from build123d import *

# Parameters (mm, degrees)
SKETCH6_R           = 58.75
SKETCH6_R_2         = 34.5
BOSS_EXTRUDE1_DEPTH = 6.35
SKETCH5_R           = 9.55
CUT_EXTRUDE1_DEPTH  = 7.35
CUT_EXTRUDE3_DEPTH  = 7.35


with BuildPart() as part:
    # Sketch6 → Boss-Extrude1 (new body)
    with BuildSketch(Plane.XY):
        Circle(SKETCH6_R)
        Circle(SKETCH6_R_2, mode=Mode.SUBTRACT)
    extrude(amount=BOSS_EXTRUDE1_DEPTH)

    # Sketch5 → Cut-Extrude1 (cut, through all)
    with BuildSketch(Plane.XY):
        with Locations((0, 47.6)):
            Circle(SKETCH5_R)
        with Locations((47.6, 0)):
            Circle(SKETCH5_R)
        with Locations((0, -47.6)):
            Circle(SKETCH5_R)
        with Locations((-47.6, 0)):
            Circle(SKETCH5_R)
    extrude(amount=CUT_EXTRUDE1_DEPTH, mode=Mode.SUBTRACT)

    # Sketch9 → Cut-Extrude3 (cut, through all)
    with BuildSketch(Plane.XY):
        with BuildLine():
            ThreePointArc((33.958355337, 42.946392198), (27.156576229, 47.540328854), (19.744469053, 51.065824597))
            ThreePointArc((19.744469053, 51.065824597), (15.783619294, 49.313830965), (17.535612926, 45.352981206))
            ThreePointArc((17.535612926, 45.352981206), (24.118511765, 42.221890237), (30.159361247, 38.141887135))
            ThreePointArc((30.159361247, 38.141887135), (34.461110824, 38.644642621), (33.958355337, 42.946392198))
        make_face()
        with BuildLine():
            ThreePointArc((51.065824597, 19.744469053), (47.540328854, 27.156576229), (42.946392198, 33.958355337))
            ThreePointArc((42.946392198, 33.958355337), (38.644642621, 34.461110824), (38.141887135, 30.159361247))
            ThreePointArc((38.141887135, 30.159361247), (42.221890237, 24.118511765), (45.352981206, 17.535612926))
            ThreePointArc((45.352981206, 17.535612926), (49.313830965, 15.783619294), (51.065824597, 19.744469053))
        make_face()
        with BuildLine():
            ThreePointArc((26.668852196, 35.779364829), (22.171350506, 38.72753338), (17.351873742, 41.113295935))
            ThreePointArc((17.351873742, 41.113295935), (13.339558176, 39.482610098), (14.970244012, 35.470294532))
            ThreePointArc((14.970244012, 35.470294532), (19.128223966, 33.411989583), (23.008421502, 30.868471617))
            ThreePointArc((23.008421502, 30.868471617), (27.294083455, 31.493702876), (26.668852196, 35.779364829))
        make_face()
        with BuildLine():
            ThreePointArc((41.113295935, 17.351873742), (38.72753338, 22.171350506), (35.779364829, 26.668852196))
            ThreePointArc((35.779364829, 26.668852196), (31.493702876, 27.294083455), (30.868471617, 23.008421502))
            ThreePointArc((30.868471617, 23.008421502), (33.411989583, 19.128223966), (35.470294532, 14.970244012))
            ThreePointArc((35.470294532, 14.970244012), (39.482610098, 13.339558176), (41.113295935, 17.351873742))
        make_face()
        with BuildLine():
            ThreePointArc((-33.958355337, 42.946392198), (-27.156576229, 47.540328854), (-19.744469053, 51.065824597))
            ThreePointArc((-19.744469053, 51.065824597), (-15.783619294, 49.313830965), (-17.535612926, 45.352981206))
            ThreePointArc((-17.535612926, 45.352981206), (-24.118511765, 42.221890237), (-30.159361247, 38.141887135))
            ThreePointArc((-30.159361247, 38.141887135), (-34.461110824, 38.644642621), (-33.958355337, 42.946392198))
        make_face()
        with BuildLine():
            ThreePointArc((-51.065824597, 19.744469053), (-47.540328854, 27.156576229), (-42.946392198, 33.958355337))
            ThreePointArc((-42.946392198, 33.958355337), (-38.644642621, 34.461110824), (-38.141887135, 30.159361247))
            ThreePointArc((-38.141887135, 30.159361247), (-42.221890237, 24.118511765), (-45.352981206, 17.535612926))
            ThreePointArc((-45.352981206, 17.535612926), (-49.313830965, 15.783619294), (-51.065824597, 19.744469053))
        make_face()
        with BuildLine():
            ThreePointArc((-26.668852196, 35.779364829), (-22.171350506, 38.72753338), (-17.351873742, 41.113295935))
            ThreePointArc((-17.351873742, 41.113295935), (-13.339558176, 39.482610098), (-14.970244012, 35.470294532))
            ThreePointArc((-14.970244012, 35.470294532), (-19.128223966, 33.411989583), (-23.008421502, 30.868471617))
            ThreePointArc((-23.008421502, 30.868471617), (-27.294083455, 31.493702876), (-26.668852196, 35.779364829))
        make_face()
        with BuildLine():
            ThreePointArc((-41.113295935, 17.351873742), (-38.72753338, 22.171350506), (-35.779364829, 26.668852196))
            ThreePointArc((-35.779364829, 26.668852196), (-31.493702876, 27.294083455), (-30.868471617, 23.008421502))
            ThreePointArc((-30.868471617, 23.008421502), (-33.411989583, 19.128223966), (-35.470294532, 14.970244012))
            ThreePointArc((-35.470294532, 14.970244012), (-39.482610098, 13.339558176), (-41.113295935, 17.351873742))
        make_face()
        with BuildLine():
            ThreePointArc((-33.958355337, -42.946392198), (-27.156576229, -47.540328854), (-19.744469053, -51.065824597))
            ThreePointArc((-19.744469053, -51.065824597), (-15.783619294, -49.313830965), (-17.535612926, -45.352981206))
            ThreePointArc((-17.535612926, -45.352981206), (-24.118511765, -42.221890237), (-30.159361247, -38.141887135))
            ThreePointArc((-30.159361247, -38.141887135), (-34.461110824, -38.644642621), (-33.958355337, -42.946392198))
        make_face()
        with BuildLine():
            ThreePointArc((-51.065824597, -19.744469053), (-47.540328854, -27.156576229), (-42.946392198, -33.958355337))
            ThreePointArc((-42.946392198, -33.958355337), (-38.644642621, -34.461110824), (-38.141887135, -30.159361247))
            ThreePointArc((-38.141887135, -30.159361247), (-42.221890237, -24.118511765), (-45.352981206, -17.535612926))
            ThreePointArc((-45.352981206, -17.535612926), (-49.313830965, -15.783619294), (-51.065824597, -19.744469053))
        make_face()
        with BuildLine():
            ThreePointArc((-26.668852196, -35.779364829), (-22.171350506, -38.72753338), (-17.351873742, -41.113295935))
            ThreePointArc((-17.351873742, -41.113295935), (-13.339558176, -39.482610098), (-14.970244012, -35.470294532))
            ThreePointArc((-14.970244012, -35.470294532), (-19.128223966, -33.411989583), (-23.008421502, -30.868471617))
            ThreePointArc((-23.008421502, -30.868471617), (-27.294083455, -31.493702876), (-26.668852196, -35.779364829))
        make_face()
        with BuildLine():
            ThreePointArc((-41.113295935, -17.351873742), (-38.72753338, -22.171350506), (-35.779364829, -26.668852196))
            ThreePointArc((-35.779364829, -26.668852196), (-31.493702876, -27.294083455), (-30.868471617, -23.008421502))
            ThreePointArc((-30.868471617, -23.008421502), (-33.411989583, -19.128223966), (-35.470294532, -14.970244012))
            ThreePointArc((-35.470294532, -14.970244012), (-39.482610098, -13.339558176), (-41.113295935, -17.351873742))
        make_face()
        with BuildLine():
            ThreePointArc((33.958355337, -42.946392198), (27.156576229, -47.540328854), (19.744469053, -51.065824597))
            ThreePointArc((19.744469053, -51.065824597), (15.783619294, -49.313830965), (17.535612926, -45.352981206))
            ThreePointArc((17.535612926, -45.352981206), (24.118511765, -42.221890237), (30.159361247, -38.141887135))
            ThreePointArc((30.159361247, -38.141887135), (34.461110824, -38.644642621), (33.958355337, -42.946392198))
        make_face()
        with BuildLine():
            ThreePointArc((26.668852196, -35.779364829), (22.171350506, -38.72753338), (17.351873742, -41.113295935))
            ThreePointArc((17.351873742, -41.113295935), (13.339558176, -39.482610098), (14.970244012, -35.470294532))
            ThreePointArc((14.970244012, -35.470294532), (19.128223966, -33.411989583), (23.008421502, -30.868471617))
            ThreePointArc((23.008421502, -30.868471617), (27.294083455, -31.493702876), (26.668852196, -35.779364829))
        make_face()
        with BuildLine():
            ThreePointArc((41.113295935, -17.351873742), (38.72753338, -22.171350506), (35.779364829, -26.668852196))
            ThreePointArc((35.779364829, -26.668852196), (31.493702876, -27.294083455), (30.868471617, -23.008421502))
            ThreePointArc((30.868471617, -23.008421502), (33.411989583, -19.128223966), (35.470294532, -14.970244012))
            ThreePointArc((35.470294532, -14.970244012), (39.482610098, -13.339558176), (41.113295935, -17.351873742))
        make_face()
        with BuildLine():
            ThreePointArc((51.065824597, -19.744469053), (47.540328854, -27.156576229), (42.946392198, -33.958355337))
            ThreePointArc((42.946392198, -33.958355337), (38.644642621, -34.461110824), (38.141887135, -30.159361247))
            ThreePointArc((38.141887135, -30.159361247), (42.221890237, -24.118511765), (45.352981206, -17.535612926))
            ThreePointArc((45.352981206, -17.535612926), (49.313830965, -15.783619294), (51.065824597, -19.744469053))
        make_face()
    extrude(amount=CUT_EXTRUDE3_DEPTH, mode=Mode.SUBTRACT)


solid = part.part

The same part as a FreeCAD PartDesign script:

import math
import FreeCAD as App
import Part
import Sketcher
Q = App.Units.Quantity

doc = App.newDocument("Part")
body = doc.addObject("PartDesign::Body", "Body")

sketch1 = body.newObject("Sketcher::SketchObject", "Sketch")
sketch1.AttachmentSupport = (doc.getObject("XY_Plane"), [""])
sketch1.MapMode = "FlatFace"
sketch1.addGeometry([
    Part.Circle(App.Vector(0, 0, 0), App.Vector(0, 0, 1), 59),
    Part.Circle(App.Vector(0, 0, 0), App.Vector(0, 0, 1), 34),
], False)
sketch1.addConstraint([
    Sketcher.Constraint("Coincident", 0, 3, -1, 1),
    Sketcher.Constraint("Coincident", 1, 3, -1, 1),
    Sketcher.Constraint("Diameter", 1, Q("69 mm")),
    Sketcher.Constraint("Diameter", 0, Q("117.5 mm")),
])
pad1 = body.newObject("PartDesign::Pad", "Pad")
pad1.Profile = sketch1
pad1.Length = 6.35

sketch2 = body.newObject("Sketcher::SketchObject", "Sketch001")
sketch2.AttachmentSupport = (doc.getObject("XY_Plane"), [""])
sketch2.MapMode = "FlatFace"
sketch2.addGeometry([
    Part.Circle(App.Vector(0, 48, 0), App.Vector(0, 0, 1), 10),
    Part.Circle(App.Vector(48, 0, 0), App.Vector(0, 0, 1), 10),
    Part.Circle(App.Vector(0, -48, 0), App.Vector(0, 0, 1), 10),
    Part.Circle(App.Vector(-48, 0, 0), App.Vector(0, 0, 1), 10),
], False)
sketch2.addConstraint([
    Sketcher.Constraint("Equal", 0, 1),
    Sketcher.Constraint("Equal", 1, 2),
    Sketcher.Constraint("Equal", 2, 3),
    Sketcher.Constraint("Symmetric", 0, 3, 2, 3, -1, 1),
    Sketcher.Constraint("Symmetric", 1, 3, 3, 3, -1, 1),
    Sketcher.Constraint("PointOnObject", 0, 3, -2),
    Sketcher.Constraint("PointOnObject", 1, 3, -1),
    Sketcher.Constraint("Diameter", 0, Q("19.1 mm")),
    Sketcher.Constraint("DistanceY", -1, 1, 0, 3, Q("47.6 mm")),
    Sketcher.Constraint("DistanceX", -1, 1, 1, 3, Q("47.6 mm")),
])
pocket1 = body.newObject("PartDesign::Pocket", "Pocket")
pocket1.Profile = sketch2
pocket1.Type = "ThroughAll"
pocket1.Reversed = True

sketch3 = body.newObject("Sketcher::SketchObject", "Sketch002")
sketch3.AttachmentSupport = (doc.getObject("XY_Plane"), [""])
sketch3.MapMode = "FlatFace"
sketch3.addGeometry([
    Part.ArcOfCircle(Part.Circle(App.Vector(0, 0, 0), App.Vector(0, 0, 1), 54.7), math.radians(51.67), math.radians(68.86)),
    Part.ArcOfCircle(Part.Circle(App.Vector(18.6, 48.2, 0), App.Vector(0, 0, 1), 3.1), math.radians(69), math.radians(249)),
    Part.ArcOfCircle(Part.Circle(App.Vector(0, 0, 0), App.Vector(0, 0, 1), 48.6), math.radians(51.67), math.radians(68.86)),
    Part.ArcOfCircle(Part.Circle(App.Vector(32.1, 40.5, 0), App.Vector(0, 0, 1), 3.1), math.radians(-128), math.radians(52)),
    Part.ArcOfCircle(Part.Circle(App.Vector(0, 0, 0), App.Vector(0, 0, 1), 54.7), math.radians(21.14), math.radians(38.33)),
    Part.ArcOfCircle(Part.Circle(App.Vector(40.5, 32.1, 0), App.Vector(0, 0, 1), 3.1), math.radians(38), math.radians(218)),
    Part.ArcOfCircle(Part.Circle(App.Vector(0, 0, 0), App.Vector(0, 0, 1), 48.6), math.radians(21.14), math.radians(38.33)),
    Part.ArcOfCircle(Part.Circle(App.Vector(48.2, 18.6, 0), App.Vector(0, 0, 1), 3.1), math.radians(-159), math.radians(21)),
    Part.ArcOfCircle(Part.Circle(App.Vector(0, 0, 0), App.Vector(0, 0, 1), 44.6), math.radians(53.3), math.radians(67.12)),
    Part.ArcOfCircle(Part.Circle(App.Vector(16.2, 38.3, 0), App.Vector(0, 0, 1), 3.1), math.radians(67), math.radians(247)),
    Part.ArcOfCircle(Part.Circle(App.Vector(0, 0, 0), App.Vector(0, 0, 1), 38.5), math.radians(53.3), math.radians(67.12)),
    Part.ArcOfCircle(Part.Circle(App.Vector(24.8, 33.3, 0), App.Vector(0, 0, 1), 3.1), math.radians(-127), math.radians(53)),
    Part.ArcOfCircle(Part.Circle(App.Vector(0, 0, 0), App.Vector(0, 0, 1), 44.6), math.radians(22.88), math.radians(36.7)),
    Part.ArcOfCircle(Part.Circle(App.Vector(33.3, 24.8, 0), App.Vector(0, 0, 1), 3.1), math.radians(37), math.radians(217)),
    Part.ArcOfCircle(Part.Circle(App.Vector(0, 0, 0), App.Vector(0, 0, 1), 38.5), math.radians(22.88), math.radians(36.7)),
    Part.ArcOfCircle(Part.Circle(App.Vector(38.3, 16.2, 0), App.Vector(0, 0, 1), 3.1), math.radians(-157), math.radians(23)),
    Part.ArcOfCircle(Part.Circle(App.Vector(0, 0, 0), App.Vector(0, 0, 1), 54.7), math.radians(111.14), math.radians(128.33)),
    Part.ArcOfCircle(Part.Circle(App.Vector(-32.1, 40.5, 0), App.Vector(0, 0, 1), 3.1), math.radians(128), math.radians(308)),
    Part.ArcOfCircle(Part.Circle(App.Vector(0, 0, 0), App.Vector(0, 0, 1), 48.6), math.radians(111.14), math.radians(128.33)),
    Part.ArcOfCircle(Part.Circle(App.Vector(-18.6, 48.2, 0), App.Vector(0, 0, 1), 3.1), math.radians(-69), math.radians(111)),
    Part.ArcOfCircle(Part.Circle(App.Vector(0, 0, 0), App.Vector(0, 0, 1), 54.7), math.radians(141.67), math.radians(158.86)),
    Part.ArcOfCircle(Part.Circle(App.Vector(-48.2, 18.6, 0), App.Vector(0, 0, 1), 3.1), math.radians(159), math.radians(339)),
    Part.ArcOfCircle(Part.Circle(App.Vector(0, 0, 0), App.Vector(0, 0, 1), 48.6), math.radians(141.67), math.radians(158.86)),
    Part.ArcOfCircle(Part.Circle(App.Vector(-40.5, 32.1, 0), App.Vector(0, 0, 1), 3.1), math.radians(-38), math.radians(142)),
    Part.ArcOfCircle(Part.Circle(App.Vector(0, 0, 0), App.Vector(0, 0, 1), 44.6), math.radians(112.88), math.radians(126.7)),
    Part.ArcOfCircle(Part.Circle(App.Vector(-24.8, 33.3, 0), App.Vector(0, 0, 1), 3.1), math.radians(127), math.radians(307)),
    Part.ArcOfCircle(Part.Circle(App.Vector(0, 0, 0), App.Vector(0, 0, 1), 38.5), math.radians(112.88), math.radians(126.7)),
    Part.ArcOfCircle(Part.Circle(App.Vector(-16.2, 38.3, 0), App.Vector(0, 0, 1), 3.1), math.radians(-67), math.radians(113)),
    Part.ArcOfCircle(Part.Circle(App.Vector(0, 0, 0), App.Vector(0, 0, 1), 44.6), math.radians(143.3), math.radians(157.12)),
    Part.ArcOfCircle(Part.Circle(App.Vector(-38.3, 16.2, 0), App.Vector(0, 0, 1), 3.1), math.radians(157), math.radians(337)),
    Part.ArcOfCircle(Part.Circle(App.Vector(0, 0, 0), App.Vector(0, 0, 1), 38.5), math.radians(143.3), math.radians(157.12)),
    Part.ArcOfCircle(Part.Circle(App.Vector(-33.3, 24.8, 0), App.Vector(0, 0, 1), 3.1), math.radians(-37), math.radians(143)),
    Part.ArcOfCircle(Part.Circle(App.Vector(0, 0, 0), App.Vector(0, 0, 1), 54.7), math.radians(-128.33), math.radians(-111.14)),
    Part.ArcOfCircle(Part.Circle(App.Vector(-18.6, -48.2, 0), App.Vector(0, 0, 1), 3.1), math.radians(-111), math.radians(69)),
    Part.ArcOfCircle(Part.Circle(App.Vector(0, 0, 0), App.Vector(0, 0, 1), 48.6), math.radians(-128.33), math.radians(-111.14)),
    Part.ArcOfCircle(Part.Circle(App.Vector(-32.1, -40.5, 0), App.Vector(0, 0, 1), 3.1), math.radians(52), math.radians(232)),
    Part.ArcOfCircle(Part.Circle(App.Vector(0, 0, 0), App.Vector(0, 0, 1), 54.7), math.radians(-158.86), math.radians(-141.67)),
    Part.ArcOfCircle(Part.Circle(App.Vector(-40.5, -32.1, 0), App.Vector(0, 0, 1), 3.1), math.radians(-142), math.radians(38)),
    Part.ArcOfCircle(Part.Circle(App.Vector(0, 0, 0), App.Vector(0, 0, 1), 48.6), math.radians(-158.86), math.radians(-141.67)),
    Part.ArcOfCircle(Part.Circle(App.Vector(-48.2, -18.6, 0), App.Vector(0, 0, 1), 3.1), math.radians(21), math.radians(201)),
    Part.ArcOfCircle(Part.Circle(App.Vector(0, 0, 0), App.Vector(0, 0, 1), 44.6), math.radians(-126.7), math.radians(-112.88)),
    Part.ArcOfCircle(Part.Circle(App.Vector(-16.2, -38.3, 0), App.Vector(0, 0, 1), 3.1), math.radians(-113), math.radians(67)),
    Part.ArcOfCircle(Part.Circle(App.Vector(0, 0, 0), App.Vector(0, 0, 1), 38.5), math.radians(-126.7), math.radians(-112.88)),
    Part.ArcOfCircle(Part.Circle(App.Vector(-24.8, -33.3, 0), App.Vector(0, 0, 1), 3.1), math.radians(53), math.radians(233)),
    Part.ArcOfCircle(Part.Circle(App.Vector(0, 0, 0), App.Vector(0, 0, 1), 44.6), math.radians(-157.12), math.radians(-143.3)),
    Part.ArcOfCircle(Part.Circle(App.Vector(-33.3, -24.8, 0), App.Vector(0, 0, 1), 3.1), math.radians(-143), math.radians(37)),
    Part.ArcOfCircle(Part.Circle(App.Vector(0, 0, 0), App.Vector(0, 0, 1), 38.5), math.radians(-157.12), math.radians(-143.3)),
    Part.ArcOfCircle(Part.Circle(App.Vector(-38.3, -16.2, 0), App.Vector(0, 0, 1), 3.1), math.radians(23), math.radians(203)),
    Part.ArcOfCircle(Part.Circle(App.Vector(0, 0, 0), App.Vector(0, 0, 1), 54.7), math.radians(-68.86), math.radians(-51.67)),
    Part.ArcOfCircle(Part.Circle(App.Vector(32.1, -40.5, 0), App.Vector(0, 0, 1), 3.1), math.radians(-52), math.radians(128)),
    Part.ArcOfCircle(Part.Circle(App.Vector(0, 0, 0), App.Vector(0, 0, 1), 48.6), math.radians(-68.86), math.radians(-51.67)),
    Part.ArcOfCircle(Part.Circle(App.Vector(18.6, -48.2, 0), App.Vector(0, 0, 1), 3.1), math.radians(111), math.radians(291)),
    Part.ArcOfCircle(Part.Circle(App.Vector(0, 0, 0), App.Vector(0, 0, 1), 44.6), math.radians(-67.12), math.radians(-53.3)),
    Part.ArcOfCircle(Part.Circle(App.Vector(24.8, -33.3, 0), App.Vector(0, 0, 1), 3.1), math.radians(-53), math.radians(127)),
    Part.ArcOfCircle(Part.Circle(App.Vector(0, 0, 0), App.Vector(0, 0, 1), 38.5), math.radians(-67.12), math.radians(-53.3)),
    Part.ArcOfCircle(Part.Circle(App.Vector(16.2, -38.3, 0), App.Vector(0, 0, 1), 3.1), math.radians(113), math.radians(293)),
    Part.ArcOfCircle(Part.Circle(App.Vector(0, 0, 0), App.Vector(0, 0, 1), 44.6), math.radians(-36.7), math.radians(-22.88)),
    Part.ArcOfCircle(Part.Circle(App.Vector(38.3, -16.2, 0), App.Vector(0, 0, 1), 3.1), math.radians(-23), math.radians(157)),
    Part.ArcOfCircle(Part.Circle(App.Vector(0, 0, 0), App.Vector(0, 0, 1), 38.5), math.radians(-36.7), math.radians(-22.88)),
    Part.ArcOfCircle(Part.Circle(App.Vector(33.3, -24.8, 0), App.Vector(0, 0, 1), 3.1), math.radians(143), math.radians(323)),
    Part.ArcOfCircle(Part.Circle(App.Vector(0, 0, 0), App.Vector(0, 0, 1), 54.7), math.radians(-38.33), math.radians(-21.14)),
    Part.ArcOfCircle(Part.Circle(App.Vector(48.2, -18.6, 0), App.Vector(0, 0, 1), 3.1), math.radians(-21), math.radians(159)),
    Part.ArcOfCircle(Part.Circle(App.Vector(0, 0, 0), App.Vector(0, 0, 1), 48.6), math.radians(-38.33), math.radians(-21.14)),
    Part.ArcOfCircle(Part.Circle(App.Vector(40.5, -32.1, 0), App.Vector(0, 0, 1), 3.1), math.radians(142), math.radians(322)),
], False)
sketch3.addConstraint([
    Sketcher.Constraint("Tangent", 0, 2, 1, 1),
    Sketcher.Constraint("Tangent", 1, 2, 2, 2),
    Sketcher.Constraint("Tangent", 2, 1, 3, 1),
    Sketcher.Constraint("Tangent", 3, 2, 0, 1),
    Sketcher.Constraint("Tangent", 4, 2, 5, 1),
    Sketcher.Constraint("Tangent", 5, 2, 6, 2),
    Sketcher.Constraint("Tangent", 6, 1, 7, 1),
    Sketcher.Constraint("Tangent", 7, 2, 4, 1),
    Sketcher.Constraint("Tangent", 8, 2, 9, 1),
    Sketcher.Constraint("Tangent", 9, 2, 10, 2),
    Sketcher.Constraint("Tangent", 10, 1, 11, 1),
    Sketcher.Constraint("Tangent", 11, 2, 8, 1),
    Sketcher.Constraint("Tangent", 12, 2, 13, 1),
    Sketcher.Constraint("Tangent", 13, 2, 14, 2),
    Sketcher.Constraint("Tangent", 14, 1, 15, 1),
    Sketcher.Constraint("Tangent", 15, 2, 12, 1),
    Sketcher.Constraint("Tangent", 16, 2, 17, 1),
    Sketcher.Constraint("Tangent", 17, 2, 18, 2),
    Sketcher.Constraint("Tangent", 18, 1, 19, 1),
    Sketcher.Constraint("Tangent", 19, 2, 16, 1),
    Sketcher.Constraint("Tangent", 20, 2, 21, 1),
    Sketcher.Constraint("Tangent", 21, 2, 22, 2),
    Sketcher.Constraint("Tangent", 22, 1, 23, 1),
    Sketcher.Constraint("Tangent", 23, 2, 20, 1),
    Sketcher.Constraint("Tangent", 24, 2, 25, 1),
    Sketcher.Constraint("Tangent", 25, 2, 26, 2),
    Sketcher.Constraint("Tangent", 26, 1, 27, 1),
    Sketcher.Constraint("Tangent", 27, 2, 24, 1),
    Sketcher.Constraint("Tangent", 28, 2, 29, 1),
    Sketcher.Constraint("Tangent", 29, 2, 30, 2),
    Sketcher.Constraint("Tangent", 30, 1, 31, 1),
    Sketcher.Constraint("Tangent", 31, 2, 28, 1),
    Sketcher.Constraint("Tangent", 32, 2, 33, 1),
    Sketcher.Constraint("Tangent", 33, 2, 34, 2),
    Sketcher.Constraint("Tangent", 34, 1, 35, 1),
    Sketcher.Constraint("Tangent", 35, 2, 32, 1),
    Sketcher.Constraint("Tangent", 36, 2, 37, 1),
    Sketcher.Constraint("Tangent", 37, 2, 38, 2),
    Sketcher.Constraint("Tangent", 38, 1, 39, 1),
    Sketcher.Constraint("Tangent", 39, 2, 36, 1),
    Sketcher.Constraint("Tangent", 40, 2, 41, 1),
    Sketcher.Constraint("Tangent", 41, 2, 42, 2),
    Sketcher.Constraint("Tangent", 42, 1, 43, 1),
    Sketcher.Constraint("Tangent", 43, 2, 40, 1),
    Sketcher.Constraint("Tangent", 44, 2, 45, 1),
    Sketcher.Constraint("Tangent", 45, 2, 46, 2),
    Sketcher.Constraint("Tangent", 46, 1, 47, 1),
    Sketcher.Constraint("Tangent", 47, 2, 44, 1),
    Sketcher.Constraint("Tangent", 48, 2, 49, 1),
    Sketcher.Constraint("Tangent", 49, 2, 50, 2),
    Sketcher.Constraint("Tangent", 50, 1, 51, 1),
    Sketcher.Constraint("Tangent", 51, 2, 48, 1),
    Sketcher.Constraint("Tangent", 52, 2, 53, 1),
    Sketcher.Constraint("Tangent", 53, 2, 54, 2),
    Sketcher.Constraint("Tangent", 54, 1, 55, 1),
    Sketcher.Constraint("Tangent", 55, 2, 52, 1),
    Sketcher.Constraint("Tangent", 56, 2, 57, 1),
    Sketcher.Constraint("Tangent", 57, 2, 58, 2),
    Sketcher.Constraint("Tangent", 58, 1, 59, 1),
    Sketcher.Constraint("Tangent", 59, 2, 56, 1),
    Sketcher.Constraint("Tangent", 60, 2, 61, 1),
    Sketcher.Constraint("Tangent", 61, 2, 62, 2),
    Sketcher.Constraint("Tangent", 62, 1, 63, 1),
    Sketcher.Constraint("Tangent", 63, 2, 60, 1),
    Sketcher.Constraint("Coincident", 0, 3, -1, 1),
    Sketcher.Constraint("Coincident", 2, 3, -1, 1),
    Sketcher.Constraint("Coincident", 4, 3, -1, 1),
    Sketcher.Constraint("Coincident", 6, 3, -1, 1),
    Sketcher.Constraint("Coincident", 8, 3, -1, 1),
    Sketcher.Constraint("Coincident", 10, 3, -1, 1),
    Sketcher.Constraint("Coincident", 12, 3, -1, 1),
    Sketcher.Constraint("Coincident", 14, 3, -1, 1),
    Sketcher.Constraint("Coincident", 16, 3, -1, 1),
    Sketcher.Constraint("Coincident", 18, 3, -1, 1),
    Sketcher.Constraint("Coincident", 20, 3, -1, 1),
    Sketcher.Constraint("Coincident", 22, 3, -1, 1),
    Sketcher.Constraint("Coincident", 24, 3, -1, 1),
    Sketcher.Constraint("Coincident", 26, 3, -1, 1),
    Sketcher.Constraint("Coincident", 28, 3, -1, 1),
    Sketcher.Constraint("Coincident", 30, 3, -1, 1),
    Sketcher.Constraint("Coincident", 32, 3, -1, 1),
    Sketcher.Constraint("Coincident", 34, 3, -1, 1),
    Sketcher.Constraint("Coincident", 36, 3, -1, 1),
    Sketcher.Constraint("Coincident", 38, 3, -1, 1),
    Sketcher.Constraint("Coincident", 40, 3, -1, 1),
    Sketcher.Constraint("Coincident", 42, 3, -1, 1),
    Sketcher.Constraint("Coincident", 44, 3, -1, 1),
    Sketcher.Constraint("Coincident", 46, 3, -1, 1),
    Sketcher.Constraint("Coincident", 48, 3, -1, 1),
    Sketcher.Constraint("Coincident", 50, 3, -1, 1),
    Sketcher.Constraint("Coincident", 52, 3, -1, 1),
    Sketcher.Constraint("Coincident", 54, 3, -1, 1),
    Sketcher.Constraint("Coincident", 56, 3, -1, 1),
    Sketcher.Constraint("Coincident", 58, 3, -1, 1),
    Sketcher.Constraint("Coincident", 60, 3, -1, 1),
    Sketcher.Constraint("Coincident", 62, 3, -1, 1),
    Sketcher.Constraint("Equal", 0, 4),
    Sketcher.Constraint("Equal", 3, 5),
    Sketcher.Constraint("Equal", 7, 9),
    Sketcher.Constraint("Equal", 8, 12),
    Sketcher.Constraint("Equal", 11, 13),
    Sketcher.Constraint("Equal", 4, 16),
    Sketcher.Constraint("Equal", 15, 17),
    Sketcher.Constraint("Equal", 16, 20),
    Sketcher.Constraint("Equal", 19, 21),
    Sketcher.Constraint("Equal", 12, 24),
    Sketcher.Constraint("Equal", 23, 25),
    Sketcher.Constraint("Equal", 24, 28),
    Sketcher.Constraint("Equal", 27, 29),
    Sketcher.Constraint("Equal", 20, 32),
    Sketcher.Constraint("Equal", 31, 33),
    Sketcher.Constraint("Equal", 32, 36),
    Sketcher.Constraint("Equal", 35, 37),
    Sketcher.Constraint("Equal", 28, 40),
    Sketcher.Constraint("Equal", 39, 41),
    Sketcher.Constraint("Equal", 40, 44),
    Sketcher.Constraint("Equal", 43, 45),
    Sketcher.Constraint("Equal", 36, 48),
    Sketcher.Constraint("Equal", 47, 49),
    Sketcher.Constraint("Equal", 44, 52),
    Sketcher.Constraint("Equal", 51, 53),
    Sketcher.Constraint("Equal", 52, 56),
    Sketcher.Constraint("Equal", 55, 57),
    Sketcher.Constraint("Equal", 48, 60),
    Sketcher.Constraint("Equal", 59, 61),
    Sketcher.Constraint("Horizontal", 3, 3, 17, 3),
    Sketcher.Constraint("Horizontal", 1, 3, 19, 3),
    Sketcher.Constraint("Horizontal", 7, 3, 21, 3),
    Sketcher.Constraint("Horizontal", 5, 3, 23, 3),
    Sketcher.Constraint("Horizontal", 11, 3, 25, 3),
    Sketcher.Constraint("Horizontal", 9, 3, 27, 3),
    Sketcher.Constraint("Horizontal", 15, 3, 29, 3),
    Sketcher.Constraint("Horizontal", 13, 3, 31, 3),
    Sketcher.Constraint("Horizontal", 35, 3, 49, 3),
    Sketcher.Constraint("Horizontal", 33, 3, 51, 3),
    Sketcher.Constraint("Horizontal", 43, 3, 53, 3),
    Sketcher.Constraint("Horizontal", 41, 3, 55, 3),
    Sketcher.Constraint("Horizontal", 47, 3, 57, 3),
    Sketcher.Constraint("Horizontal", 45, 3, 59, 3),
    Sketcher.Constraint("Horizontal", 39, 3, 61, 3),
    Sketcher.Constraint("Horizontal", 37, 3, 63, 3),
    Sketcher.Constraint("Vertical", 19, 3, 33, 3),
    Sketcher.Constraint("Vertical", 17, 3, 35, 3),
    Sketcher.Constraint("Vertical", 23, 3, 37, 3),
    Sketcher.Constraint("Vertical", 21, 3, 39, 3),
    Sketcher.Constraint("Vertical", 27, 3, 41, 3),
    Sketcher.Constraint("Vertical", 25, 3, 43, 3),
    Sketcher.Constraint("Vertical", 31, 3, 45, 3),
    Sketcher.Constraint("Vertical", 29, 3, 47, 3),
    Sketcher.Constraint("Radius", 10, Q("38.5 mm")),
    Sketcher.Constraint("Radius", 0, Q("54.75 mm")),
    Sketcher.Constraint("Radius", 2, Q("48.625 mm")),
    Sketcher.Constraint("DistanceX", -1, 1, 1, 3, Q("18.640041 mm")),
    Sketcher.Constraint("DistanceX", -1, 1, 3, 3, Q("32.058858 mm")),
    Sketcher.Constraint("DistanceX", -1, 1, 5, 3, Q("40.54414 mm")),
    Sketcher.Constraint("DistanceY", -1, 1, 7, 3, Q("18.640041 mm")),
    Sketcher.Constraint("DistanceX", -1, 1, 9, 3, Q("16.161059 mm")),
    Sketcher.Constraint("DistanceY", -1, 1, 11, 3, Q("33.323918 mm")),
    Sketcher.Constraint("DistanceX", -1, 1, 13, 3, Q("33.323918 mm")),
    Sketcher.Constraint("DistanceY", -1, 1, 15, 3, Q("16.161059 mm")),
])
pocket2 = body.newObject("PartDesign::Pocket", "Pocket001")
pocket2.Profile = sketch3
pocket2.Type = "ThroughAll"
pocket2.Reversed = True

doc.recompute()
